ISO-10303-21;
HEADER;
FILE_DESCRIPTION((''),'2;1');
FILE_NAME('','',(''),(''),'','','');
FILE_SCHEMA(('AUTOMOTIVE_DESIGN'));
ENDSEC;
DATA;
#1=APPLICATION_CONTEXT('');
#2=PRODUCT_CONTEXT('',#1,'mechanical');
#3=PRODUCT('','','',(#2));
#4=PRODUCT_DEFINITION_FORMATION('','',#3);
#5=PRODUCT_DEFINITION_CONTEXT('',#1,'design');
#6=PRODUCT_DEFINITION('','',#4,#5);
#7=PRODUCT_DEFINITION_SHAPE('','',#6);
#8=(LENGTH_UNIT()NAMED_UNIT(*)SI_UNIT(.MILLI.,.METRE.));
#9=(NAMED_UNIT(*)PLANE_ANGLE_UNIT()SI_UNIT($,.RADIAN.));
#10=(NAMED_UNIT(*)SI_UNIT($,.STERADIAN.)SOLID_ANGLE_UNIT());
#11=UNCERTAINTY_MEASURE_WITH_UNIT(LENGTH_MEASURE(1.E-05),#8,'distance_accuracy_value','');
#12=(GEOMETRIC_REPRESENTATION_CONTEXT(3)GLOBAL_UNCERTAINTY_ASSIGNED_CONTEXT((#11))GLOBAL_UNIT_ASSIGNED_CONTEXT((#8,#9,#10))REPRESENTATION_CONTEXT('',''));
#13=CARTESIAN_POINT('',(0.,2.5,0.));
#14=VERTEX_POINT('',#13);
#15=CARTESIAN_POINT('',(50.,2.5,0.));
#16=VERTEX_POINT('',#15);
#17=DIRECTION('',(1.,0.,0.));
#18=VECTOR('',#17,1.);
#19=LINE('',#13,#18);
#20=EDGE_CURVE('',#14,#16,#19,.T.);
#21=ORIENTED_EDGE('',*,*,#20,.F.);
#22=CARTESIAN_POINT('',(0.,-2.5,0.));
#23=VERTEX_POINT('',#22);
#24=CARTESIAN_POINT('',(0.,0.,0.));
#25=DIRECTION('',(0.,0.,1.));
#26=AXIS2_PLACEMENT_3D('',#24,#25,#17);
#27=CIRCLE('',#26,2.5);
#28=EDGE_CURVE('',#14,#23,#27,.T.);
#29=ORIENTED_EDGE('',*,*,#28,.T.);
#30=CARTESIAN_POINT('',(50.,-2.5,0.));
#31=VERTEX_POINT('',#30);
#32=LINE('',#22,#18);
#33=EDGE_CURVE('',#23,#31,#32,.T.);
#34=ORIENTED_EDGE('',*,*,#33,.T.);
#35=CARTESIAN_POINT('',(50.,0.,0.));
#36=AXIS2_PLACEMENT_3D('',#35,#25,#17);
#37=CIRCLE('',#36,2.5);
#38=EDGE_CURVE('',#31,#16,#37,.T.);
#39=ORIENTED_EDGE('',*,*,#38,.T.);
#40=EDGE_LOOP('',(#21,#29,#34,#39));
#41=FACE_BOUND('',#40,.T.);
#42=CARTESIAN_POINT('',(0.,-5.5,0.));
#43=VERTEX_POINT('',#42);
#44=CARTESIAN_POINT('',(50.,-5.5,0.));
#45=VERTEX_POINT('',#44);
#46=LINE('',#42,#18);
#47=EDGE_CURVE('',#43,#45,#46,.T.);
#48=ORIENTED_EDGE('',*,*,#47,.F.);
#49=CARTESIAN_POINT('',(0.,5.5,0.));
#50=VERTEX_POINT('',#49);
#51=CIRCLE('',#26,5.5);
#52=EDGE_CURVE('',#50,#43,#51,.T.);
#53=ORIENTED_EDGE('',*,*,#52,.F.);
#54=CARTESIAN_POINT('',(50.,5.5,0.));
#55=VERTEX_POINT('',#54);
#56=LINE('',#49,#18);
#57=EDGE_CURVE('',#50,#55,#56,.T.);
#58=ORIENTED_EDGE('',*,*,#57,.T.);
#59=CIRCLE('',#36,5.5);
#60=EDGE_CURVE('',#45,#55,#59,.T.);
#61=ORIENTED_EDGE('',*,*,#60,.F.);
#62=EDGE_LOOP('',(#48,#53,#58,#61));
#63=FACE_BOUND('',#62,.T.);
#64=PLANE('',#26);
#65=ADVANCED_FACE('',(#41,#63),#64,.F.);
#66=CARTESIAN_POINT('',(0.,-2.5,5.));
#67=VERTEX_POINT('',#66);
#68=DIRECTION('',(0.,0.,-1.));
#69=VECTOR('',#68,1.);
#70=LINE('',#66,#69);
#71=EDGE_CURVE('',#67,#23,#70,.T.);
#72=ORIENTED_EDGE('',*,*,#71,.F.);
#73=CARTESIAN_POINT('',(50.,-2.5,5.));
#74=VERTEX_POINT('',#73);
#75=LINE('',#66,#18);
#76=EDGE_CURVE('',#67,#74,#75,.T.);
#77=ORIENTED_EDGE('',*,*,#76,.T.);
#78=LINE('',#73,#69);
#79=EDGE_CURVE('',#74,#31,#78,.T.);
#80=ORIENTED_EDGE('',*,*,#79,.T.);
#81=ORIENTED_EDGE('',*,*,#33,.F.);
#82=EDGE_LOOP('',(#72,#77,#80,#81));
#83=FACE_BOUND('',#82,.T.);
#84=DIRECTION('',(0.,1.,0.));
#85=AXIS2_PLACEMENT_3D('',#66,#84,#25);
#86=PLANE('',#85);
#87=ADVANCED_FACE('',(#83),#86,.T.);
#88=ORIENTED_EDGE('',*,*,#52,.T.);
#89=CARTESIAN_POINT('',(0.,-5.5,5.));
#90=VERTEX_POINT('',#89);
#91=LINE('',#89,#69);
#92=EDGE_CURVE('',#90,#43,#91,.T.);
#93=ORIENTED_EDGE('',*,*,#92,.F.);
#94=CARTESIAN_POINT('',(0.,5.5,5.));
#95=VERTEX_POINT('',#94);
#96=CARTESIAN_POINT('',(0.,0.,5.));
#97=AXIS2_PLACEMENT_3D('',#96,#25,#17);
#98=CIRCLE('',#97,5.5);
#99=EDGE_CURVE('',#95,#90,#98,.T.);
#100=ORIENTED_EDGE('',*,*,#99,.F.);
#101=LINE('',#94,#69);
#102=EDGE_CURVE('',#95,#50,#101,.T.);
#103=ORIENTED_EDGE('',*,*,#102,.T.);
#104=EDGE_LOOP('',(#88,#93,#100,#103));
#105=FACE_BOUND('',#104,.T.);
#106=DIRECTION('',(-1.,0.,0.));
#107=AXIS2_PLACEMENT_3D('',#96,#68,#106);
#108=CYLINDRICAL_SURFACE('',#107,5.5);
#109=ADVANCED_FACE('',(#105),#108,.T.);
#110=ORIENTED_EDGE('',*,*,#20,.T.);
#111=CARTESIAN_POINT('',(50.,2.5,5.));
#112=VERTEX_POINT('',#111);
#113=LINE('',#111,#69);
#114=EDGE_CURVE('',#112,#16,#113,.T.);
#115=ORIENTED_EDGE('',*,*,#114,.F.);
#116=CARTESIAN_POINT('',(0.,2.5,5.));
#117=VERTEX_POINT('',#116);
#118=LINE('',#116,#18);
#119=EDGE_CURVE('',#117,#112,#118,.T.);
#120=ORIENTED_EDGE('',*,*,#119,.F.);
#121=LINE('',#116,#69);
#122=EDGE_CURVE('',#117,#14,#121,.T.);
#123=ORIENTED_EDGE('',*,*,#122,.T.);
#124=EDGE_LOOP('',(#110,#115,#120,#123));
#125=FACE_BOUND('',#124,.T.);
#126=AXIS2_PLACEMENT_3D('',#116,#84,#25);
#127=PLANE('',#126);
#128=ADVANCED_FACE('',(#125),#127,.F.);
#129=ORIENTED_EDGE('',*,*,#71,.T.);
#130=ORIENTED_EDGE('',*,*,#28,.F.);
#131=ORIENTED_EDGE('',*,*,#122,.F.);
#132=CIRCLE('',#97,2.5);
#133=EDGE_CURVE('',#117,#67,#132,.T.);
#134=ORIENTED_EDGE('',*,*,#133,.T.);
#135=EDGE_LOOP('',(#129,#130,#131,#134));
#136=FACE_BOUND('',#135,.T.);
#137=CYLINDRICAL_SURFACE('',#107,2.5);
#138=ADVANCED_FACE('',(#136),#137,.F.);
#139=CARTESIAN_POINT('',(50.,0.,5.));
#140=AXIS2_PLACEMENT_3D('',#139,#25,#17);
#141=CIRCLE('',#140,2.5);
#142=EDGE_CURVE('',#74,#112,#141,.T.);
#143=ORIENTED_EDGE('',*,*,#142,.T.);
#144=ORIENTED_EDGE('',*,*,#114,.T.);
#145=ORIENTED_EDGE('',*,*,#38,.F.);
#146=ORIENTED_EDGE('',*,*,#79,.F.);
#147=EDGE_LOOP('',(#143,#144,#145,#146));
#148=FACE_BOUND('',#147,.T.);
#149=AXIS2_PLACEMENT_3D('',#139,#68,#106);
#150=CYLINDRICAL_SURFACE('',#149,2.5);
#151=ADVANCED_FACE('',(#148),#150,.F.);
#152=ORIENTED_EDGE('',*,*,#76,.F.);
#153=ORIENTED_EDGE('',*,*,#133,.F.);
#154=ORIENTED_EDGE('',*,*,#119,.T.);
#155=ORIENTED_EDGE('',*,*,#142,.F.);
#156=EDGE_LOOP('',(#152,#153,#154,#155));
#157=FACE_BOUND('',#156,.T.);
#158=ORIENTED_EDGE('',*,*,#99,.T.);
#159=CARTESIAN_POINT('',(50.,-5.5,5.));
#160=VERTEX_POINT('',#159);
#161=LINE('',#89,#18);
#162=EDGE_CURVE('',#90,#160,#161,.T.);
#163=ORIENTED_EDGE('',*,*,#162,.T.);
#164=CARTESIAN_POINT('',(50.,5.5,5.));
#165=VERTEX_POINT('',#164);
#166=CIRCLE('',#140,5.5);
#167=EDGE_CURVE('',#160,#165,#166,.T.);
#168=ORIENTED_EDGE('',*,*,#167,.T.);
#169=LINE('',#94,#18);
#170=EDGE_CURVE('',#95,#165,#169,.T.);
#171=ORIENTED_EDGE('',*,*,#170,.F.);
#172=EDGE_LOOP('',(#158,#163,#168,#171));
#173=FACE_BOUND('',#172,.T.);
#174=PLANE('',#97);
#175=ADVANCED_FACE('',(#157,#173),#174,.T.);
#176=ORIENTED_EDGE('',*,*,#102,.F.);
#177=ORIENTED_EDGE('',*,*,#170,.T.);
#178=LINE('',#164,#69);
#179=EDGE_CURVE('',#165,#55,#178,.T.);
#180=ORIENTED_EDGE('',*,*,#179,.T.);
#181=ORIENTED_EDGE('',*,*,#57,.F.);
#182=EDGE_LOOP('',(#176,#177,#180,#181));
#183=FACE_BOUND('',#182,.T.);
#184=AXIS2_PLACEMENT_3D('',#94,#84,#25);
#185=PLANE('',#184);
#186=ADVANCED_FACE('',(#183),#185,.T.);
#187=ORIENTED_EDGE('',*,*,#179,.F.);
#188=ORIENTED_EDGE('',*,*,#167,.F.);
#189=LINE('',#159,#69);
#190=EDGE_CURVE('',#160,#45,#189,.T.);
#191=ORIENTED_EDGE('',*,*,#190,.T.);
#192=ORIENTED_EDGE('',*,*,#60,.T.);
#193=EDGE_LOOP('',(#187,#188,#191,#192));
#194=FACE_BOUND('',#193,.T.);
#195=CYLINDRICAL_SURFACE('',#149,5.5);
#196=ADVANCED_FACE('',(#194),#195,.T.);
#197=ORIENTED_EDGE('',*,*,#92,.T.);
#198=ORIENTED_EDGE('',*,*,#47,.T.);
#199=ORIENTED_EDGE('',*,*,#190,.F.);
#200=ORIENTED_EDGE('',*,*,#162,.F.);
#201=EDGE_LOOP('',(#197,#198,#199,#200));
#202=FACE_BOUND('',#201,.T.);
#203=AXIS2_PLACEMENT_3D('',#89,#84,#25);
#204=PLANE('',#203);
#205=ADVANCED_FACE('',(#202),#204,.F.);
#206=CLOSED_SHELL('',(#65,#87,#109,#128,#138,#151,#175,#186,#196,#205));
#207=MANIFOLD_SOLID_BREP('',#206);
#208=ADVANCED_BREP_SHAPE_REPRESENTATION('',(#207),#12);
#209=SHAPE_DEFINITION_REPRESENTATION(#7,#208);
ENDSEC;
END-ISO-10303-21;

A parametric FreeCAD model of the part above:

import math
import FreeCAD as App
import Part
import Sketcher
Q = App.Units.Quantity

doc = App.newDocument("Part")
params = doc.addObject("Spreadsheet::Sheet", "Params")
for row, (alias, value) in enumerate([
    ("sketch1_radius", "5.5 mm"),
    ("sketch1_radius2", "2.5 mm"),
    ("sketch1_width", "50 mm"),
    ("pad1_length", "5 mm"),
], start=1):
    params.set(f"A{row}", alias)
    params.set(f"B{row}", "=" + value)
    params.setAlias(f"B{row}", alias)

body = doc.addObject("PartDesign::Body", "Body")

# Sketch on XY plane
sketch1 = doc.addObject("Sketcher::SketchObject", "Sketch")
body.addObject(sketch1)
sketch1.AttachmentSupport = (doc.XY_Plane, [""])
sketch1.MapMode = "FlatFace"
sketch1.addGeometry([
    Part.LineSegment(App.Vector(50, 5.5, 0), App.Vector(0, 5.5, 0)),  # 0
    Part.ArcOfCircle(Part.Circle(App.Vector(0, 0, 0), App.Vector(0, 0, 1), 5.5), math.radians(90), math.radians(270)),  # 1
    Part.LineSegment(App.Vector(0, -5.5, 0), App.Vector(50, -5.5, 0)),  # 2
    Part.ArcOfCircle(Part.Circle(App.Vector(50, 0, 0), App.Vector(0, 0, 1), 5.5), math.radians(-90), math.radians(90)),  # 3
    Part.LineSegment(App.Vector(50, -2.5, 0), App.Vector(0, -2.5, 0)),  # 4
    Part.ArcOfCircle(Part.Circle(App.Vector(0, 0, 0), App.Vector(0, 0, 1), 2.5), math.radians(90), math.radians(270)),  # 5
    Part.LineSegment(App.Vector(0, 2.5, 0), App.Vector(50, 2.5, 0)),  # 6
    Part.ArcOfCircle(Part.Circle(App.Vector(50, 0, 0), App.Vector(0, 0, 1), 2.5), math.radians(-90), math.radians(90)),  # 7
], False)
sketch1.addConstraint([
    Sketcher.Constraint("Tangent", 0, 2, 1, 1),
    Sketcher.Constraint("Tangent", 1, 2, 2, 1),
    Sketcher.Constraint("Tangent", 2, 2, 3, 1),
    Sketcher.Constraint("Tangent", 3, 2, 0, 1),
    Sketcher.Constraint("Tangent", 4, 2, 5, 2),
    Sketcher.Constraint("Tangent", 5, 1, 6, 1),
    Sketcher.Constraint("Tangent", 6, 2, 7, 2),
    Sketcher.Constraint("Tangent", 7, 1, 4, 1),
    Sketcher.Constraint("Horizontal", 0),
    Sketcher.Constraint("Horizontal", 2),
    Sketcher.Constraint("Horizontal", 4),
    Sketcher.Constraint("Horizontal", 6),
    Sketcher.Constraint("Coincident", 1, 3, -1, 1),
    Sketcher.Constraint("Coincident", 5, 3, -1, 1),
    Sketcher.Constraint("Vertical", 7, 3, 2, 2),
    Sketcher.Constraint("Radius", 1, Q("5.5 mm")),
    Sketcher.Constraint("Radius", 5, Q("2.5 mm")),
    Sketcher.Constraint("DistanceX", 0, 2, 0, 1, Q("50 mm")),
])
sketch1.setExpression("Constraints[15]", "Params.sketch1_radius")
sketch1.setExpression("Constraints[16]", "Params.sketch1_radius2")
sketch1.setExpression("Constraints[17]", "Params.sketch1_width")
pad1 = doc.addObject("PartDesign::Pad", "Pad")
body.addObject(pad1)
pad1.Profile = sketch1
pad1.setExpression("Length", "Params.pad1_length")

doc.recompute()
